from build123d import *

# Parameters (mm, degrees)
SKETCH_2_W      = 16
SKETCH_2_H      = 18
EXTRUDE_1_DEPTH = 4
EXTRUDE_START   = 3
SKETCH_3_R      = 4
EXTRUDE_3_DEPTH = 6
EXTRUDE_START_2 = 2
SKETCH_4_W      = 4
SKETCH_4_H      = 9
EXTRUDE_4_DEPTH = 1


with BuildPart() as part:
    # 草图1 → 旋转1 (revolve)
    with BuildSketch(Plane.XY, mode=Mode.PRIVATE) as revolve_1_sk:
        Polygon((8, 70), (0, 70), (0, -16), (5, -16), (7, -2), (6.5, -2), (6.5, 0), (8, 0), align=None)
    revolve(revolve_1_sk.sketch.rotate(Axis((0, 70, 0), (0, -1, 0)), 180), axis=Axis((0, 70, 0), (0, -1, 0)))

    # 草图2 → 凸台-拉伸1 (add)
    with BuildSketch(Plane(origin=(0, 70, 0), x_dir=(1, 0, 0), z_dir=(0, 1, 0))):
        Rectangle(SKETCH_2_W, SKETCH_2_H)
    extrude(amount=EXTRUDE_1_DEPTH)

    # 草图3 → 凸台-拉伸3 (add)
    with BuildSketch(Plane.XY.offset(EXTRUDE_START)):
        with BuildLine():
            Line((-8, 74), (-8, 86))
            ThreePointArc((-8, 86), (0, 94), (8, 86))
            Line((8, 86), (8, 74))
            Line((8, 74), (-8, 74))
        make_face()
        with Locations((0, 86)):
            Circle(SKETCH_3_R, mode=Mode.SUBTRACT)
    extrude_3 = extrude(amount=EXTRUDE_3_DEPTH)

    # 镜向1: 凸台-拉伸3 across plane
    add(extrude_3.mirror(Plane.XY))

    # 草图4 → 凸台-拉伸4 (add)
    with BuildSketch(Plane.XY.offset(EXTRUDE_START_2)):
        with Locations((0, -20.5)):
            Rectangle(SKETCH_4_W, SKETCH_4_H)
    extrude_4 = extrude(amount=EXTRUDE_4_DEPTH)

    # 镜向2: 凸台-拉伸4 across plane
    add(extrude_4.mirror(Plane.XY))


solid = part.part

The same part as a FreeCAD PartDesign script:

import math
import FreeCAD as App
import Part
import Sketcher
from FreeCAD import Vector

doc = App.newDocument("Part")
body = doc.addObject("PartDesign::Body", "Body")

sketch1 = body.newObject("Sketcher::SketchObject", "Sketch")
sketch1.AttachmentSupport = (doc.getObject("XY_Plane"), [""])
sketch1.MapMode = "FlatFace"
sketch1.addGeometry(Part.LineSegment(Vector(8, 70, 0), Vector(0, 70, 0)), False)
sketch1.addGeometry(Part.LineSegment(Vector(0, 70, 0), Vector(0, -16, 0)), False)
sketch1.addGeometry(Part.LineSegment(Vector(0, -16, 0), Vector(5, -16, 0)), False)
sketch1.addGeometry(Part.LineSegment(Vector(5, -16, 0), Vector(7, -2, 0)), False)
sketch1.addGeometry(Part.LineSegment(Vector(7, -2, 0), Vector(6.5, -2, 0)), False)
sketch1.addGeometry(Part.LineSegment(Vector(6.5, -2, 0), Vector(6.5, 0, 0)), False)
sketch1.addGeometry(Part.LineSegment(Vector(6.5, 0, 0), Vector(8, 0, 0)), False)
sketch1.addGeometry(Part.LineSegment(Vector(8, 0, 0), Vector(8, 70, 0)), False)
sketch1.addConstraint(Sketcher.Constraint("Coincident", 0, 2, 1, 1))
sketch1.addConstraint(Sketcher.Constraint("Coincident", 1, 2, 2, 1))
sketch1.addConstraint(Sketcher.Constraint("Coincident", 2, 2, 3, 1))
sketch1.addConstraint(Sketcher.Constraint("Coincident", 3, 2, 4, 1))
sketch1.addConstraint(Sketcher.Constraint("Coincident", 4, 2, 5, 1))
sketch1.addConstraint(Sketcher.Constraint("Coincident", 5, 2, 6, 1))
sketch1.addConstraint(Sketcher.Constraint("Coincident", 6, 2, 7, 1))
sketch1.addConstraint(Sketcher.Constraint("Coincident", 7, 2, 0, 1))
sketch1.addConstraint(Sketcher.Constraint("Horizontal", 0))
sketch1.addConstraint(Sketcher.Constraint("Vertical", 1))
sketch1.addConstraint(Sketcher.Constraint("Horizontal", 2))
sketch1.addConstraint(Sketcher.Constraint("Horizontal", 4))
sketch1.addConstraint(Sketcher.Constraint("Vertical", 5))
sketch1.addConstraint(Sketcher.Constraint("Horizontal", 6))
sketch1.addConstraint(Sketcher.Constraint("Vertical", 7))
sketch1.addConstraint(Sketcher.Constraint("PointOnObject", 0, 2, -2))
sketch1.addConstraint(Sketcher.Constraint("PointOnObject", 5, 2, -1))
sketch1.addConstraint(Sketcher.Constraint("DistanceX", 0, 2, 0, 1, 8.0))
sketch1.addConstraint(Sketcher.Constraint("DistanceX", 2, 1, 2, 2, 5.0))
sketch1.addConstraint(Sketcher.Constraint("DistanceY", 1, 2, 1, 1, 86.0))
sketch1.addConstraint(Sketcher.Constraint("DistanceY", 5, 1, 5, 2, 2.0))
sketch1.addConstraint(Sketcher.Constraint("DistanceY", 7, 1, 7, 2, 70.0))
sketch1.addConstraint(Sketcher.Constraint("DistanceX", 4, 2, 4, 1, 0.5))
sketch1.addConstraint(Sketcher.Constraint("DistanceX", 6, 1, 6, 2, 1.5))
revolution = body.newObject("PartDesign::Revolution", "Revolution")
revolution.Profile = sketch1
revolution.ReferenceAxis = (sketch1, ["V_Axis"])
revolution.Angle = 360

sketch2 = body.newObject("Sketcher::SketchObject", "Sketch001")
sketch2.AttachmentSupport = (doc.getObject("XZ_Plane"), [""])
sketch2.MapMode = "FlatFace"
sketch2.AttachmentOffset = App.Placement(Vector(0, 0, -70), App.Rotation())
sketch2.addGeometry(Part.LineSegment(Vector(-8, -9, 0), Vector(-8, 9, 0)), False)
sketch2.addGeometry(Part.LineSegment(Vector(-8, 9, 0), Vector(8, 9, 0)), False)
sketch2.addGeometry(Part.LineSegment(Vector(8, 9, 0), Vector(8, -9, 0)), False)
sketch2.addGeometry(Part.LineSegment(Vector(8, -9, 0), Vector(-8, -9, 0)), False)
sketch2.addConstraint(Sketcher.Constraint("Coincident", 0, 2, 1, 1))
sketch2.addConstraint(Sketcher.Constraint("Coincident", 1, 2, 2, 1))
sketch2.addConstraint(Sketcher.Constraint("Coincident", 2, 2, 3, 1))
sketch2.addConstraint(Sketcher.Constraint("Coincident", 3, 2, 0, 1))
sketch2.addConstraint(Sketcher.Constraint("Vertical", 0))
sketch2.addConstraint(Sketcher.Constraint("Horizontal", 1))
sketch2.addConstraint(Sketcher.Constraint("Vertical", 2))
sketch2.addConstraint(Sketcher.Constraint("Horizontal", 3))
sketch2.addConstraint(Sketcher.Constraint("Symmetric", 0, 2, 2, 2, -1, 1))
sketch2.addConstraint(Sketcher.Constraint("DistanceX", 1, 1, 1, 2, 16.0))
sketch2.addConstraint(Sketcher.Constraint("DistanceY", 0, 1, 0, 2, 18.0))
pad1 = body.newObject("PartDesign::Pad", "Pad")
pad1.Profile = sketch2
pad1.Length = 4
pad1.Reversed = True

sketch3 = body.newObject("Sketcher::SketchObject", "Sketch002")
sketch3.AttachmentSupport = (doc.getObject("XY_Plane"), [""])
sketch3.MapMode = "FlatFace"
sketch3.AttachmentOffset = App.Placement(Vector(0, 0, 3), App.Rotation())
sketch3.addGeometry(Part.LineSegment(Vector(-8, 86, 0), Vector(-8, 74, 0)), False)
sketch3.addGeometry(Part.LineSegment(Vector(-8, 74, 0), Vector(8, 74, 0)), False)
sketch3.addGeometry(Part.LineSegment(Vector(8, 74, 0), Vector(8, 86, 0)), False)
sketch3.addGeometry(Part.ArcOfCircle(Part.Circle(Vector(0, 86, 0), Vector(0, 0, 1), 8), math.radians(0), math.radians(180)), False)
sketch3.addGeometry(Part.Circle(Vector(0, 86, 0), Vector(0, 0, 1), 4), False)
sketch3.addConstraint(Sketcher.Constraint("Coincident", 0, 2, 1, 1))
sketch3.addConstraint(Sketcher.Constraint("Coincident", 1, 2, 2, 1))
sketch3.addConstraint(Sketcher.Constraint("Tangent", 2, 2, 3, 1))
sketch3.addConstraint(Sketcher.Constraint("Tangent", 3, 2, 0, 1))
sketch3.addConstraint(Sketcher.Constraint("Vertical", 0))
sketch3.addConstraint(Sketcher.Constraint("Horizontal", 1))
sketch3.addConstraint(Sketcher.Constraint("Vertical", 2))
sketch3.addConstraint(Sketcher.Constraint("Coincident", 4, 3, 3, 3))
sketch3.addConstraint(Sketcher.Constraint("PointOnObject", 3, 3, -2))
sketch3.addConstraint(Sketcher.Constraint("Diameter", 4, 8.0))
sketch3.addConstraint(Sketcher.Constraint("Radius", 3, 8.0))
sketch3.addConstraint(Sketcher.Constraint("DistanceY", 0, 2, 0, 1, 12.0))
sketch3.addConstraint(Sketcher.Constraint("DistanceY", -1, 1, 3, 3, 86.0))
pad2 = body.newObject("PartDesign::Pad", "Pad001")
pad2.Profile = sketch3
pad2.Length = 6
doc.recompute()

mirrored = body.newObject("PartDesign::Mirrored", "Mirrored")
mirrored.Originals = [pad2]
mirrored.MirrorPlane = (doc.getObject("XY_Plane"), [""])
body.Tip = mirrored

sketch4 = body.newObject("Sketcher::SketchObject", "Sketch003")
sketch4.AttachmentSupport = (doc.getObject("XY_Plane"), [""])
sketch4.MapMode = "FlatFace"
sketch4.AttachmentOffset = App.Placement(Vector(0, 0, 2), App.Rotation())
sketch4.addGeometry(Part.LineSegment(Vector(-2, -16, 0), Vector(-2, -25, 0)), False)
sketch4.addGeometry(Part.LineSegment(Vector(-2, -25, 0), Vector(2, -25, 0)), False)
sketch4.addGeometry(Part.LineSegment(Vector(2, -25, 0), Vector(2, -16, 0)), False)
sketch4.addGeometry(Part.LineSegment(Vector(2, -16, 0), Vector(-2, -16, 0)), False)
sketch4.addConstraint(Sketcher.Constraint("Coincident", 0, 2, 1, 1))
sketch4.addConstraint(Sketcher.Constraint("Coincident", 1, 2, 2, 1))
sketch4.addConstraint(Sketcher.Constraint("Coincident", 2, 2, 3, 1))
sketch4.addConstraint(Sketcher.Constraint("Coincident", 3, 2, 0, 1))
sketch4.addConstraint(Sketcher.Constraint("Vertical", 0))
sketch4.addConstraint(Sketcher.Constraint("Horizontal", 1))
sketch4.addConstraint(Sketcher.Constraint("Vertical", 2))
sketch4.addConstraint(Sketcher.Constraint("Horizontal", 3))
sketch4.addConstraint(Sketcher.Constraint("DistanceX", 1, 1, 1, 2, 4.0))
sketch4.addConstraint(Sketcher.Constraint("DistanceY", 0, 2, 0, 1, 9.0))
sketch4.addConstraint(Sketcher.Constraint("DistanceX", 0, 2, -1, 1, 2.0))
sketch4.addConstraint(Sketcher.Constraint("DistanceY", 0, 2, -1, 1, 25.0))
pad3 = body.newObject("PartDesign::Pad", "Pad002")
pad3.Profile = sketch4
pad3.Length = 1
doc.recompute()

mirrored2 = body.newObject("PartDesign::Mirrored", "Mirrored001")
mirrored2.Originals = [pad3]
mirrored2.MirrorPlane = (doc.getObject("XY_Plane"), [""])
body.Tip = mirrored2

doc.recompute()
